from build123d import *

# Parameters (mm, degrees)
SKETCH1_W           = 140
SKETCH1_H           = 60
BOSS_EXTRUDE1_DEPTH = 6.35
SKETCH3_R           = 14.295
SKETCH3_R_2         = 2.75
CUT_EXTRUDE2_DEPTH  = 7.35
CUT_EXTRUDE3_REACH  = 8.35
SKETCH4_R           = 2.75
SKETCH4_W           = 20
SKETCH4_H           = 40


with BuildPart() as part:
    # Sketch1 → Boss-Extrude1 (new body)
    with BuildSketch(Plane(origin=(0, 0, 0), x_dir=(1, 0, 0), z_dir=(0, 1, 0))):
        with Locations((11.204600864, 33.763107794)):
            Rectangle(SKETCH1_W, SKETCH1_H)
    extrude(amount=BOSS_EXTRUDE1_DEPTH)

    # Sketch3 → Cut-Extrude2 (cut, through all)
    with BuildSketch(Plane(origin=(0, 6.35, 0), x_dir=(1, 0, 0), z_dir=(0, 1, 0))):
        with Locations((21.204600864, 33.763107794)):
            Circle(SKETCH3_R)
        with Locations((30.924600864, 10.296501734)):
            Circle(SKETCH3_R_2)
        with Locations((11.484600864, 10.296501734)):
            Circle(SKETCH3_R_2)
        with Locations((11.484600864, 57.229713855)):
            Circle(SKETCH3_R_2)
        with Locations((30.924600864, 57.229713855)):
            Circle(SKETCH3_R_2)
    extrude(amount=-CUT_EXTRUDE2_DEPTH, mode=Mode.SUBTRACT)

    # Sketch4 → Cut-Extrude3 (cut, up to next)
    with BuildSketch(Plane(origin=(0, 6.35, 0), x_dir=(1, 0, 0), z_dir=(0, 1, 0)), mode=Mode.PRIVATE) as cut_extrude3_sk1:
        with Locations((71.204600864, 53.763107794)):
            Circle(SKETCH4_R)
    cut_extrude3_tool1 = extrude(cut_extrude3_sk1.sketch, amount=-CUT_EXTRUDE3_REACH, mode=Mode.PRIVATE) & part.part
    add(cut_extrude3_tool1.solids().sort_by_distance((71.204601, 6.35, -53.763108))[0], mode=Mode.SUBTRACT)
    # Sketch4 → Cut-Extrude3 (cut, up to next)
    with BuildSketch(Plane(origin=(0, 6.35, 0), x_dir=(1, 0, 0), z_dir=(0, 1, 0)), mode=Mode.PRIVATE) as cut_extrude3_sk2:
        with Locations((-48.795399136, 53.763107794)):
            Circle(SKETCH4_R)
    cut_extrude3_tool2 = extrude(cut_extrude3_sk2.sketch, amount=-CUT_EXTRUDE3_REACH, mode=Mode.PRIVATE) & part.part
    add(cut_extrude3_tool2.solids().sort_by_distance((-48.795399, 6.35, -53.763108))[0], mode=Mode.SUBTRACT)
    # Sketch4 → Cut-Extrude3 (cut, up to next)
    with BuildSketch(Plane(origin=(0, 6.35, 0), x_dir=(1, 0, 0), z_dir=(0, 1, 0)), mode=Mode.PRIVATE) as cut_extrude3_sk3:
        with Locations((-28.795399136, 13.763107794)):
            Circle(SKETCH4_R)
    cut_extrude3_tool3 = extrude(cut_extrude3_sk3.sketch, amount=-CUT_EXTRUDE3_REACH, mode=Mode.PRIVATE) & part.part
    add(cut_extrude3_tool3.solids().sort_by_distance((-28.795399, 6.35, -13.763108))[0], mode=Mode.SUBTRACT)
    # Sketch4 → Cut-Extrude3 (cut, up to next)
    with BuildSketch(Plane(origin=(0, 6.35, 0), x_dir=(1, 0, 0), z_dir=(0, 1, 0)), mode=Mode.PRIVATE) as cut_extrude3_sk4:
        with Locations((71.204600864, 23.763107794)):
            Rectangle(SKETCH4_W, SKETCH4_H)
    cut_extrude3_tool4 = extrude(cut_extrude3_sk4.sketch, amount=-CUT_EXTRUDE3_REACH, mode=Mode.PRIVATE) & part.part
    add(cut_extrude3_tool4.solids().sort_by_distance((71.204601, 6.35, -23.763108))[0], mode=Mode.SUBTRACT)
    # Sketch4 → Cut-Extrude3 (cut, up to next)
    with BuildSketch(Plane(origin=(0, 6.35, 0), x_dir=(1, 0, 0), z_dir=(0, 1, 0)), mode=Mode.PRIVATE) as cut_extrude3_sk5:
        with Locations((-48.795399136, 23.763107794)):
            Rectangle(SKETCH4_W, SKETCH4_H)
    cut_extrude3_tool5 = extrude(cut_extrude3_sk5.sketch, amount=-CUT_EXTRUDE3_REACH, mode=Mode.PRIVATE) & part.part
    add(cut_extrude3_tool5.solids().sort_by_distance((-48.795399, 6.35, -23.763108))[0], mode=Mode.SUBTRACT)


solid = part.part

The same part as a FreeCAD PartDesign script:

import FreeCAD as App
import Part
import Sketcher
from FreeCAD import Vector


def add_polygon(sketch, points):
    """Adds a closed chain of lines whose ends are joined by coincident constraints."""
    first, n = sketch.GeometryCount, len(points)
    for a, b in zip(points, points[1:] + points[:1]):
        sketch.addGeometry(Part.LineSegment(App.Vector(*a, 0), App.Vector(*b, 0)), False)
    for i in range(n):
        sketch.addConstraint(Sketcher.Constraint("Coincident", first + i, 2, first + (i + 1) % n, 1))

doc = App.newDocument("Part")
params = doc.addObject("Spreadsheet::Sheet", "Params")
for row, (alias, value) in enumerate([
    ("sketch1_width", "140 mm"),
    ("sketch1_height", "60 mm"),
    ("pad1_length", "6.35 mm"),
    ("sketch2_diameter", "5.5 mm"),
    ("sketch2_diameter2", "28.59 mm"),
    ("sketch3_diameter", "5.5 mm"),
    ("sketch4_diameter", "5.5 mm"),
    ("sketch5_diameter", "5.5 mm"),
    ("sketch6_width", "20 mm"),
    ("sketch6_height", "40 mm"),
    ("sketch7_width", "20 mm"),
    ("sketch7_height", "40 mm"),
], start=1):
    params.set(f"A{row}", alias)
    params.set(f"B{row}", "=" + value)
    params.setAlias(f"B{row}", alias)

body = doc.addObject("PartDesign::Body", "Body")

# Sketch on XZ plane
sketch1 = doc.addObject("Sketcher::SketchObject", "Sketch")
body.addObject(sketch1)
sketch1.AttachmentSupport = (doc.XZ_Plane, [""])
sketch1.MapMode = "FlatFace"
add_polygon(sketch1, [(-59, -64), (-59, -4), (81, -4), (81, -64)])  # lines 0-3
sketch1.addConstraint(Sketcher.Constraint("Vertical", 0))
sketch1.addConstraint(Sketcher.Constraint("Horizontal", 1))
sketch1.addConstraint(Sketcher.Constraint("Vertical", 2))
sketch1.addConstraint(Sketcher.Constraint("Horizontal", 3))
sketch1.addConstraint(Sketcher.Constraint("DistanceX", 1, 1, 1, 2, 140.0))
sketch1.addConstraint(Sketcher.Constraint("DistanceY", 0, 1, 0, 2, 60.0))
sketch1.addConstraint(Sketcher.Constraint("DistanceX", 0, 2, -1, 1, 58.795399))
sketch1.addConstraint(Sketcher.Constraint("DistanceY", 0, 2, -1, 1, 3.763108))
sketch1.setExpression("Constraints[8]", "Params.sketch1_width")
sketch1.setExpression("Constraints[9]", "Params.sketch1_height")
pad1 = doc.addObject("PartDesign::Pad", "Pad")
body.addObject(pad1)
pad1.Profile = sketch1
pad1.setExpression("Length", "Params.pad1_length")
pad1.Reversed = True

# Sketch on XZ plane
sketch2 = doc.addObject("Sketcher::SketchObject", "Sketch001")
body.addObject(sketch2)
sketch2.AttachmentSupport = (doc.XZ_Plane, [""])
sketch2.MapMode = "FlatFace"
sketch2.AttachmentOffset = App.Placement(Vector(0, 0, -6.35), App.Rotation())
sketch2.addGeometry(Part.Circle(Vector(21.2, -33.8, 0), Vector(0, 0, 1), 14.3), False)
sketch2.addGeometry(Part.Circle(Vector(30.9, -10.3, 0), Vector(0, 0, 1), 2.8), False)
sketch2.addGeometry(Part.Circle(Vector(11.5, -10.3, 0), Vector(0, 0, 1), 2.8), False)
sketch2.addGeometry(Part.Circle(Vector(11.5, -57.2, 0), Vector(0, 0, 1), 2.8), False)
sketch2.addGeometry(Part.Circle(Vector(30.9, -57.2, 0), Vector(0, 0, 1), 2.8), False)
sketch2.addConstraint(Sketcher.Constraint("Equal", 1, 2))
sketch2.addConstraint(Sketcher.Constraint("Equal", 2, 3))
sketch2.addConstraint(Sketcher.Constraint("Equal", 3, 4))
sketch2.addConstraint(Sketcher.Constraint("Horizontal", 1, 3, 2, 3))
sketch2.addConstraint(Sketcher.Constraint("Horizontal", 3, 3, 4, 3))
sketch2.addConstraint(Sketcher.Constraint("Vertical", 2, 3, 3, 3))
sketch2.addConstraint(Sketcher.Constraint("Vertical", 1, 3, 4, 3))
sketch2.addConstraint(Sketcher.Constraint("Diameter", 1, 5.5))
sketch2.addConstraint(Sketcher.Constraint("Diameter", 0, 28.59))
sketch2.addConstraint(Sketcher.Constraint("DistanceX", 0, 3, 1, 3, 9.72))
sketch2.addConstraint(Sketcher.Constraint("DistanceX", 2, 3, 1, 3, 19.44))
sketch2.addConstraint(Sketcher.Constraint("DistanceX", -1, 1, 0, 3, 21.204601))
sketch2.addConstraint(Sketcher.Constraint("DistanceY", 1, 3, -1, 1, 10.296502))
sketch2.addConstraint(Sketcher.Constraint("DistanceY", 0, 3, -1, 1, 33.763108))
sketch2.addConstraint(Sketcher.Constraint("DistanceY", 3, 3, -1, 1, 57.229714))
sketch2.setExpression("Constraints[7]", "Params.sketch2_diameter")
sketch2.setExpression("Constraints[8]", "Params.sketch2_diameter2")
pocket1 = doc.addObject("PartDesign::Pocket", "Pocket")
body.addObject(pocket1)
pocket1.Profile = sketch2
pocket1.Type = "ThroughAll"
pocket1.Reversed = True

# Sketch on XZ plane
sketch3 = doc.addObject("Sketcher::SketchObject", "Sketch002")
body.addObject(sketch3)
sketch3.AttachmentSupport = (doc.XZ_Plane, [""])
sketch3.MapMode = "FlatFace"
sketch3.AttachmentOffset = App.Placement(Vector(0, 0, -6.35), App.Rotation())
sketch3.addGeometry(Part.Circle(Vector(71.2, -53.8, 0), Vector(0, 0, 1), 2.8), False)
sketch3.addConstraint(Sketcher.Constraint("Diameter", 0, 5.5))
sketch3.addConstraint(Sketcher.Constraint("DistanceX", -1, 1, 0, 3, 71.204601))
sketch3.addConstraint(Sketcher.Constraint("DistanceY", 0, 3, -1, 1, 53.763108))
sketch3.setExpression("Constraints[0]", "Params.sketch3_diameter")
pocket2 = doc.addObject("PartDesign::Pocket", "Pocket001")
body.addObject(pocket2)
pocket2.Profile = sketch3
pocket2.Type = "UpToFirst"
pocket2.Reversed = True

# Sketch on XZ plane
sketch4 = doc.addObject("Sketcher::SketchObject", "Sketch003")
body.addObject(sketch4)
sketch4.AttachmentSupport = (doc.XZ_Plane, [""])
sketch4.MapMode = "FlatFace"
sketch4.AttachmentOffset = App.Placement(Vector(0, 0, -6.35), App.Rotation())
sketch4.addGeometry(Part.Circle(Vector(-48.8, -53.8, 0), Vector(0, 0, 1), 2.8), False)
sketch4.addConstraint(Sketcher.Constraint("Diameter", 0, 5.5))
sketch4.addConstraint(Sketcher.Constraint("DistanceX", 0, 3, -1, 1, 48.795399))
sketch4.addConstraint(Sketcher.Constraint("DistanceY", 0, 3, -1, 1, 53.763108))
sketch4.setExpression("Constraints[0]", "Params.sketch4_diameter")
pocket3 = doc.addObject("PartDesign::Pocket", "Pocket002")
body.addObject(pocket3)
pocket3.Profile = sketch4
pocket3.Type = "UpToFirst"
pocket3.Reversed = True

# Sketch on XZ plane
sketch5 = doc.addObject("Sketcher::SketchObject", "Sketch004")
body.addObject(sketch5)
sketch5.AttachmentSupport = (doc.XZ_Plane, [""])
sketch5.MapMode = "FlatFace"
sketch5.AttachmentOffset = App.Placement(Vector(0, 0, -6.35), App.Rotation())
sketch5.addGeometry(Part.Circle(Vector(-28.8, -13.8, 0), Vector(0, 0, 1), 2.8), False)
sketch5.addConstraint(Sketcher.Constraint("Diameter", 0, 5.5))
sketch5.addConstraint(Sketcher.Constraint("DistanceX", 0, 3, -1, 1, 28.795399))
sketch5.addConstraint(Sketcher.Constraint("DistanceY", 0, 3, -1, 1, 13.763108))
sketch5.setExpression("Constraints[0]", "Params.sketch5_diameter")
pocket4 = doc.addObject("PartDesign::Pocket", "Pocket003")
body.addObject(pocket4)
pocket4.Profile = sketch5
pocket4.Type = "UpToFirst"
pocket4.Reversed = True

# Sketch on XZ plane
sketch6 = doc.addObject("Sketcher::SketchObject", "Sketch005")
body.addObject(sketch6)
sketch6.AttachmentSupport = (doc.XZ_Plane, [""])
sketch6.MapMode = "FlatFace"
sketch6.AttachmentOffset = App.Placement(Vector(0, 0, -6.35), App.Rotation())
add_polygon(sketch6, [(61, -44), (61, -4), (81, -4), (81, -44)])  # lines 0-3
sketch6.addConstraint(Sketcher.Constraint("Vertical", 0))
sketch6.addConstraint(Sketcher.Constraint("Horizontal", 1))
sketch6.addConstraint(Sketcher.Constraint("Vertical", 2))
sketch6.addConstraint(Sketcher.Constraint("Horizontal", 3))
sketch6.addConstraint(Sketcher.Constraint("DistanceX", 1, 1, 1, 2, 20.0))
sketch6.addConstraint(Sketcher.Constraint("DistanceY", 0, 1, 0, 2, 40.0))
sketch6.addConstraint(Sketcher.Constraint("DistanceX", -1, 1, 0, 2, 61.204601))
sketch6.addConstraint(Sketcher.Constraint("DistanceY", 0, 2, -1, 1, 3.763108))
sketch6.setExpression("Constraints[8]", "Params.sketch6_width")
sketch6.setExpression("Constraints[9]", "Params.sketch6_height")
pocket5 = doc.addObject("PartDesign::Pocket", "Pocket004")
body.addObject(pocket5)
pocket5.Profile = sketch6
pocket5.Type = "UpToFirst"
pocket5.Reversed = True

# Sketch on XZ plane
sketch7 = doc.addObject("Sketcher::SketchObject", "Sketch006")
body.addObject(sketch7)
sketch7.AttachmentSupport = (doc.XZ_Plane, [""])
sketch7.MapMode = "FlatFace"
sketch7.AttachmentOffset = App.Placement(Vector(0, 0, -6.35), App.Rotation())
add_polygon(sketch7, [(-59, -44), (-59, -4), (-39, -4), (-39, -44)])  # lines 0-3
sketch7.addConstraint(Sketcher.Constraint("Vertical", 0))
sketch7.addConstraint(Sketcher.Constraint("Horizontal", 1))
sketch7.addConstraint(Sketcher.Constraint("Vertical", 2))
sketch7.addConstraint(Sketcher.Constraint("Horizontal", 3))
sketch7.addConstraint(Sketcher.Constraint("DistanceX", 1, 1, 1, 2, 20.0))
sketch7.addConstraint(Sketcher.Constraint("DistanceY", 0, 1, 0, 2, 40.0))
sketch7.addConstraint(Sketcher.Constraint("DistanceX", 0, 2, -1, 1, 58.795399))
sketch7.addConstraint(Sketcher.Constraint("DistanceY", 0, 2, -1, 1, 3.763108))
sketch7.setExpression("Constraints[8]", "Params.sketch7_width")
sketch7.setExpression("Constraints[9]", "Params.sketch7_height")
pocket6 = doc.addObject("PartDesign::Pocket", "Pocket005")
body.addObject(pocket6)
pocket6.Profile = sketch7
pocket6.Type = "UpToFirst"
pocket6.Reversed = True

doc.recompute()
